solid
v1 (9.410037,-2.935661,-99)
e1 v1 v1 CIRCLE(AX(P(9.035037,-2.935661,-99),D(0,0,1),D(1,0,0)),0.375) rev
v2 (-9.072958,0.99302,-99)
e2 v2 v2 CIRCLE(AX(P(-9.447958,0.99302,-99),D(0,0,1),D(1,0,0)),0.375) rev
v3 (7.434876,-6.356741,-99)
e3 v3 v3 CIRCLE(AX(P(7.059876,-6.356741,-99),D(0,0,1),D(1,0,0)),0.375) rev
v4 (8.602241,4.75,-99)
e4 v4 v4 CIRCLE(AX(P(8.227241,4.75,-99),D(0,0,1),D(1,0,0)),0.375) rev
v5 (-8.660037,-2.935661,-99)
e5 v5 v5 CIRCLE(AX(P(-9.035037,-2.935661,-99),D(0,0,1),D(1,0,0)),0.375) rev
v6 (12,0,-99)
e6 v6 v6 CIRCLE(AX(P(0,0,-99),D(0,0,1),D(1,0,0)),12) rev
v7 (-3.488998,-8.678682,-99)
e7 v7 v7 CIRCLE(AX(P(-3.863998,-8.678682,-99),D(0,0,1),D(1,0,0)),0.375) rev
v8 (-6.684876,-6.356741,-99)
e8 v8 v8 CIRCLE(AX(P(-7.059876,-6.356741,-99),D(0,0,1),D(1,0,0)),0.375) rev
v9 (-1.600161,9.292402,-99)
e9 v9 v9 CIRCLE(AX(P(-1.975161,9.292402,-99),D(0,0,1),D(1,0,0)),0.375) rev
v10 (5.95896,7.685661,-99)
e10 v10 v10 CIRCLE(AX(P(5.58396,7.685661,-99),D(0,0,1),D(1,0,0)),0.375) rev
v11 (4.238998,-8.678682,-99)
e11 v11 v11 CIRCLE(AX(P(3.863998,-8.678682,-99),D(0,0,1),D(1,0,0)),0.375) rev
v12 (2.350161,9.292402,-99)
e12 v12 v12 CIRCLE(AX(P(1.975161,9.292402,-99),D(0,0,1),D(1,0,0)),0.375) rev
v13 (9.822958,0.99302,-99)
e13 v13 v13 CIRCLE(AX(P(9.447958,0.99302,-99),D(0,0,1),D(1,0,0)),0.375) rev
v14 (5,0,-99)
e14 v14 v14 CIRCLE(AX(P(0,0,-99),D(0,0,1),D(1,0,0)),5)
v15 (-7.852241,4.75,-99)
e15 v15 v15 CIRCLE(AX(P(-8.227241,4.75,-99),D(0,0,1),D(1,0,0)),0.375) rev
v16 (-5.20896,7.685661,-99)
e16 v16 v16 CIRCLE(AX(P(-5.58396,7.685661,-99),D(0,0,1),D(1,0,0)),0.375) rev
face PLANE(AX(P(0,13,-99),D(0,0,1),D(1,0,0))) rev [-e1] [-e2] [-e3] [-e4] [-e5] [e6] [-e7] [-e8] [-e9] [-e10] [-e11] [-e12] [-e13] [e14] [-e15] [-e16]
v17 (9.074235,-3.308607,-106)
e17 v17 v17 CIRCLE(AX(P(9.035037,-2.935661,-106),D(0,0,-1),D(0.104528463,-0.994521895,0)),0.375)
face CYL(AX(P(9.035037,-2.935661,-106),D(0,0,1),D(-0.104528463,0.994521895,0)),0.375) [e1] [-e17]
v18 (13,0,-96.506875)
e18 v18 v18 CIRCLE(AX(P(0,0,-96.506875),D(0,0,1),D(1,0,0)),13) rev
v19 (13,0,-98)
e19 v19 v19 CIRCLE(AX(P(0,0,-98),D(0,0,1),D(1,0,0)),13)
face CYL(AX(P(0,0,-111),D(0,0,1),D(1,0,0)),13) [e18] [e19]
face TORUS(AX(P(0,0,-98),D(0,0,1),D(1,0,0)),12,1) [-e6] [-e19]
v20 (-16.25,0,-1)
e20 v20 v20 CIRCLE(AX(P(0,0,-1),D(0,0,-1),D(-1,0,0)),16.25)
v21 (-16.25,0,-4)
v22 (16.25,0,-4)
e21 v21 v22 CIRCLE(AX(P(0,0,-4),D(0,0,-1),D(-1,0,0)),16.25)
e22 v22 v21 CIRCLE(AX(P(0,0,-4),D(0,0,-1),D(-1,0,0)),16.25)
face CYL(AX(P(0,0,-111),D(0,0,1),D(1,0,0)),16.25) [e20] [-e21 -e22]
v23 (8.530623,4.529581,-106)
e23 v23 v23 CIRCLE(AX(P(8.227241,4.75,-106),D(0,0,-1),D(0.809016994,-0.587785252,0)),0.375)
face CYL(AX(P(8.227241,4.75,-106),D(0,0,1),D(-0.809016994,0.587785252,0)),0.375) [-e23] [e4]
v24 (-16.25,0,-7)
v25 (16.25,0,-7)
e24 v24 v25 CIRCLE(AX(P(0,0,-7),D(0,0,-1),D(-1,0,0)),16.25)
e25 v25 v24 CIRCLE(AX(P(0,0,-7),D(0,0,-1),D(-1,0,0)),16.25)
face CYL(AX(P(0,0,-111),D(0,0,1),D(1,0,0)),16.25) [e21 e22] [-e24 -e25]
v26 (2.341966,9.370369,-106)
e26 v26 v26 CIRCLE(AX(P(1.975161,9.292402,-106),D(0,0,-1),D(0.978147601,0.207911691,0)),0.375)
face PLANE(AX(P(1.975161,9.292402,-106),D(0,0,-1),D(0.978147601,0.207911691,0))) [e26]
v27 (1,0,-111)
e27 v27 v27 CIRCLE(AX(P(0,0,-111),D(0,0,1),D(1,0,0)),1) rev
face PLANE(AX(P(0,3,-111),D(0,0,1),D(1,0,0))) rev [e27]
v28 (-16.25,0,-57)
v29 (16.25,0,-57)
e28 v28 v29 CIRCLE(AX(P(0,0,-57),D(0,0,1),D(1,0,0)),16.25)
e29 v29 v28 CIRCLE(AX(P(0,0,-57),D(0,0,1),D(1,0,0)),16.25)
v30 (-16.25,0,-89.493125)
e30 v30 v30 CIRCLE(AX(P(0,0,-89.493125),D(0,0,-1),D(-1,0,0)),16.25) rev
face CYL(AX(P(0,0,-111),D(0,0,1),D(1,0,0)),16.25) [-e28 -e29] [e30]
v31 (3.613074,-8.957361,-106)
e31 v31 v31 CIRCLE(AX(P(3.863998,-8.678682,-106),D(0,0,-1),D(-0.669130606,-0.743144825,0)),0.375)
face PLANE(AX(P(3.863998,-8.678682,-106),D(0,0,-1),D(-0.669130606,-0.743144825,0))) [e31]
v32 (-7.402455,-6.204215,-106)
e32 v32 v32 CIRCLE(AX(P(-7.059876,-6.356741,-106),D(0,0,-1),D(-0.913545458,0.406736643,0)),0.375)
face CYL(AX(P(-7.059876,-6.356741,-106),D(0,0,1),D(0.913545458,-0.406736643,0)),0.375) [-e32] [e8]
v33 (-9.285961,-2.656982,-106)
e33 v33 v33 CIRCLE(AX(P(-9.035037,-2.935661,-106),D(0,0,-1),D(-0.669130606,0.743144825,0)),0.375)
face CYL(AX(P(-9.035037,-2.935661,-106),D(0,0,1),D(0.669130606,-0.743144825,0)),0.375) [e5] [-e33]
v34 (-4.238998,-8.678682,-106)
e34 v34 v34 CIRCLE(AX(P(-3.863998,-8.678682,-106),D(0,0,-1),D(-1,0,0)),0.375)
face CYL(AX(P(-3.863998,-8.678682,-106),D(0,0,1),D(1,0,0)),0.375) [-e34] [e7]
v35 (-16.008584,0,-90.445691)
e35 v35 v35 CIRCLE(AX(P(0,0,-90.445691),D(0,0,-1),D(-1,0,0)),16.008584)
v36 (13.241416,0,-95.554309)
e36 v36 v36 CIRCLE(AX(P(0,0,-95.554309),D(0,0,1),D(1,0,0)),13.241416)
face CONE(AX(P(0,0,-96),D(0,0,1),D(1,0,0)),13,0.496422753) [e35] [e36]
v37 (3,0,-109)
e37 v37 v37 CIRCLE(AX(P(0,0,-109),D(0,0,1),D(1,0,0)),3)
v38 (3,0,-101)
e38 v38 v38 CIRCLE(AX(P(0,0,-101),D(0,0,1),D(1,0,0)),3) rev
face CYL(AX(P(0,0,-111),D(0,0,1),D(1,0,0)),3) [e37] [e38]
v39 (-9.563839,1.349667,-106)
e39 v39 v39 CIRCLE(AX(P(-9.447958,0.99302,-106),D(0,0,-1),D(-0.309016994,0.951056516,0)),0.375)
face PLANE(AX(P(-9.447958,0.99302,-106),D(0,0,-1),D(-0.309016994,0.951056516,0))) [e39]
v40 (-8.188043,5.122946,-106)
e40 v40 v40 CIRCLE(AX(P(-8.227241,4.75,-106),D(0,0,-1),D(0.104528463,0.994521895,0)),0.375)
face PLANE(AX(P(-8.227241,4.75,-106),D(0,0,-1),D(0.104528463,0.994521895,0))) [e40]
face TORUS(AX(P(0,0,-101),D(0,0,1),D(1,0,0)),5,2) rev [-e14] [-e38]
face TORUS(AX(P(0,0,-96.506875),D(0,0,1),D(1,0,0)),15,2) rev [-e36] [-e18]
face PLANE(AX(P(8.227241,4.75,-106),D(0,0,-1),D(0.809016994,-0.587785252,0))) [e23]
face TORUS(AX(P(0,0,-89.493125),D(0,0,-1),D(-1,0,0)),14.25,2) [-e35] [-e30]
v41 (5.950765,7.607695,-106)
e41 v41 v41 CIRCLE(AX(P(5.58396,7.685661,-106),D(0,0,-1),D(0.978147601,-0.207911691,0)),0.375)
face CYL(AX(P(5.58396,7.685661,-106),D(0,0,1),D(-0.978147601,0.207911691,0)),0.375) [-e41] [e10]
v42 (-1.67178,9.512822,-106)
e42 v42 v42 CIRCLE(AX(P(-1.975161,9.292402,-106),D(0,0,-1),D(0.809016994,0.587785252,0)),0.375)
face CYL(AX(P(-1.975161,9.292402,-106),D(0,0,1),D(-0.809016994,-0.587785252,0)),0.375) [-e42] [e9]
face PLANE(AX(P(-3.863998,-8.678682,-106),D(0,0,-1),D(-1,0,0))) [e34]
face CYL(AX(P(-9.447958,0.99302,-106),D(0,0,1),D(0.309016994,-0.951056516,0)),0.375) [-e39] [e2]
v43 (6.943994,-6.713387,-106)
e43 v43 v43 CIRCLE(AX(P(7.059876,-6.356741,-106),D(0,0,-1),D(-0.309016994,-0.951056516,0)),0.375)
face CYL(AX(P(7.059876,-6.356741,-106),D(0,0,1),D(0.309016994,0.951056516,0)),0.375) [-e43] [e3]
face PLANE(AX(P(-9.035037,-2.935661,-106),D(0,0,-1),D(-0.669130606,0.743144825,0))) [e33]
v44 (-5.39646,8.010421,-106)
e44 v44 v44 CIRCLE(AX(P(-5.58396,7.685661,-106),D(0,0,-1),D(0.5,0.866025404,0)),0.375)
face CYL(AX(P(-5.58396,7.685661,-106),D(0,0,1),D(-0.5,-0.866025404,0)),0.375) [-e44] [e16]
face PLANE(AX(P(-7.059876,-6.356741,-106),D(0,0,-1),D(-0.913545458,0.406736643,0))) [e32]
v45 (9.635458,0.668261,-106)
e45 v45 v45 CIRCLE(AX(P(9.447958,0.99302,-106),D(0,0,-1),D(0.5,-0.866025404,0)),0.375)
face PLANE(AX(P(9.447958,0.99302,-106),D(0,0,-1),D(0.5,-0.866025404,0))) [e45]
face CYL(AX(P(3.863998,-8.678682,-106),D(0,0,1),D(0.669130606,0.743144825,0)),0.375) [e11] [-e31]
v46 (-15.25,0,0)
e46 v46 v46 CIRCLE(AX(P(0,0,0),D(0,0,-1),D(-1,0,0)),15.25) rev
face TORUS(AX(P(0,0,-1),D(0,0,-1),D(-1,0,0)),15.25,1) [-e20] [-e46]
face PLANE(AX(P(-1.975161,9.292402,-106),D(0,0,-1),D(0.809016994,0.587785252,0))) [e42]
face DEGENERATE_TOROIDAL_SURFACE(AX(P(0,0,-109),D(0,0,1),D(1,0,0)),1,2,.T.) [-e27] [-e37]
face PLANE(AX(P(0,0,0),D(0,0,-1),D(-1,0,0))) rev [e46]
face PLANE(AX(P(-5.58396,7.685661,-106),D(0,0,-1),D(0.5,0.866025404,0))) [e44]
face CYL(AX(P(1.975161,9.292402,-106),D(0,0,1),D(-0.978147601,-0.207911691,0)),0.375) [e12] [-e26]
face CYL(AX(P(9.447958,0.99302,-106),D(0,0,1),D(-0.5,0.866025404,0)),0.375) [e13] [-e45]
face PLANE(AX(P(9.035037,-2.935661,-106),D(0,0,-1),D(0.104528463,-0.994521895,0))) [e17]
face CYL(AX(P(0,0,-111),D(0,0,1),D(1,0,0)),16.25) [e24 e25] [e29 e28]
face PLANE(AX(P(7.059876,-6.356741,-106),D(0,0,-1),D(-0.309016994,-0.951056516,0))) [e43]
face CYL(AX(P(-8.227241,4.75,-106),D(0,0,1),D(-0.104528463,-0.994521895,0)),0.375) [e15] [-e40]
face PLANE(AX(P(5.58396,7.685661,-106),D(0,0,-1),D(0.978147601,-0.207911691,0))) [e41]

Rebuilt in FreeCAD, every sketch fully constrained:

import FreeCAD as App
import Part
import Sketcher


def edges_at(feature, points):
    """Names of the edges that pass closest to the given points."""
    edges = feature.Shape.Edges
    near = lambda p: min(range(len(edges)), key=lambda i: edges[i].distToShape(Part.Vertex(*p))[0])
    return sorted({f"Edge{near(p) + 1}" for p in points})

doc = App.newDocument("Part")
params = doc.addObject("Spreadsheet::Sheet", "Params")
for row, (alias, value) in enumerate([
    ("sketch1_width", "3 mm"),
    ("sketch1_width2", "10 mm"),
    ("sketch1_height", "111 mm"),
    ("sketch1_height2", "12 mm"),
    ("sketch1_height3", "90 mm"),
    ("revolution_angle", "360 deg"),
    ("fillet_radius", "1 mm"),
    ("fillet2_radius", "2 mm"),
    ("sketch2_diameter", "0.75 mm"),
    ("pad1_length", "7 mm"),
], start=1):
    params.set(f"A{row}", alias)
    params.set(f"B{row}", "=" + value)
    params.setAlias(f"B{row}", alias)

body = doc.addObject("PartDesign::Body", "Body")

sketch1 = body.newObject("Sketcher::SketchObject", "Sketch")
sketch1.AttachmentSupport = (doc.getObject("YZ_Plane"), [""])
sketch1.MapMode = "FlatFace"
sketch1.addGeometry([
    Part.LineSegment(App.Vector(16.2, 0, 0), App.Vector(0, 0, 0)),
    Part.LineSegment(App.Vector(0, 0, 0), App.Vector(0, -111, 0)),
    Part.LineSegment(App.Vector(0, -111, 0), App.Vector(3, -111, 0)),
    Part.LineSegment(App.Vector(3, -111, 0), App.Vector(3, -99, 0)),
    Part.LineSegment(App.Vector(3, -99, 0), App.Vector(13, -99, 0)),
    Part.LineSegment(App.Vector(13, -99, 0), App.Vector(13, -96, 0)),
    Part.LineSegment(App.Vector(13, -96, 0), App.Vector(16.2, -90, 0)),
    Part.LineSegment(App.Vector(16.2, -90, 0), App.Vector(16.2, 0, 0)),
], False)
sketch1.addConstraint([
    Sketcher.Constraint("Coincident", 0, 2, 1, 1),
    Sketcher.Constraint("Coincident", 1, 2, 2, 1),
    Sketcher.Constraint("Coincident", 2, 2, 3, 1),
    Sketcher.Constraint("Coincident", 3, 2, 4, 1),
    Sketcher.Constraint("Coincident", 4, 2, 5, 1),
    Sketcher.Constraint("Coincident", 5, 2, 6, 1),
    Sketcher.Constraint("Coincident", 6, 2, 7, 1),
    Sketcher.Constraint("Coincident", 7, 2, 0, 1),
    Sketcher.Constraint("Horizontal", 0),
    Sketcher.Constraint("Vertical", 1),
    Sketcher.Constraint("Horizontal", 2),
    Sketcher.Constraint("Vertical", 3),
    Sketcher.Constraint("Horizontal", 4),
    Sketcher.Constraint("Vertical", 5),
    Sketcher.Constraint("Vertical", 7),
    Sketcher.Constraint("Coincident", 0, 2, -1, 1),
    Sketcher.Constraint("Equal", 2, 5),
    Sketcher.Constraint("DistanceX", 2, 1, 2, 2, 3.0),
    Sketcher.Constraint("DistanceX", 4, 1, 4, 2, 10.0),
    Sketcher.Constraint("DistanceY", 1, 2, 1, 1, 111.0),
    Sketcher.Constraint("DistanceY", 3, 1, 3, 2, 12.0),
    Sketcher.Constraint("DistanceY", 7, 1, 7, 2, 90.0),
    Sketcher.Constraint("DistanceX", 0, 2, 0, 1, 16.25),
])
sketch1.setExpression("Constraints[17]", "Params.sketch1_width")
sketch1.setExpression("Constraints[18]", "Params.sketch1_width2")
sketch1.setExpression("Constraints[19]", "Params.sketch1_height")
sketch1.setExpression("Constraints[20]", "Params.sketch1_height2")
sketch1.setExpression("Constraints[21]", "Params.sketch1_height3")
revolution = body.newObject("PartDesign::Revolution", "Revolution")
revolution.Profile = sketch1
revolution.ReferenceAxis = (sketch1, ["V_Axis"])
revolution.setExpression("Angle", "Params.revolution_angle")
doc.recompute()

fillet = body.newObject("PartDesign::Fillet", "Fillet")
fillet.Base = (revolution, edges_at(revolution, [(-13, 0, -99), (-16.25, 0, 0)]))
fillet.setExpression("Radius", "Params.fillet_radius")
doc.recompute()

fillet2 = body.newObject("PartDesign::Fillet", "Fillet001")
fillet2.Base = (fillet, edges_at(fillet, [
    (-3, 0, -111),
    (-3, 0, -99),
    (-13, 0, -96),
    (-16.25, 0, -90),
]))
fillet2.setExpression("Radius", "Params.fillet2_radius")

sketch2 = body.newObject("Sketcher::SketchObject", "Sketch001")
sketch2.AttachmentSupport = (doc.getObject("XY_Plane"), [""])
sketch2.MapMode = "FlatFace"
sketch2.AttachmentOffset = App.Placement(App.Vector(0, 0, -99), App.Rotation())
sketch2.addGeometry(Part.Circle(App.Vector(-3.86, -8.68, 0), App.Vector(0, 0, 1), 0.38), False)
sketch2.addConstraint([
    Sketcher.Constraint("Diameter", 0, 0.75),
    Sketcher.Constraint("DistanceX", 0, 3, -1, 1, 3.863998),
    Sketcher.Constraint("DistanceY", 0, 3, -1, 1, 8.678682),
])
sketch2.setExpression("Constraints[0]", "Params.sketch2_diameter")
pad1 = body.newObject("PartDesign::Pad", "Pad")
pad1.Profile = sketch2
pad1.setExpression("Length", "Params.pad1_length")
pad1.Reversed = True
doc.recompute()

polarpattern = body.newObject("PartDesign::PolarPattern", "PolarPattern")
polarpattern.Originals = [pad1]
polarpattern.Axis = (doc.getObject("Z_Axis"), [""])
polarpattern.Angle = 312
polarpattern.Occurrences = 14
polarpattern.Reversed = True
body.Tip = polarpattern

doc.recompute()
